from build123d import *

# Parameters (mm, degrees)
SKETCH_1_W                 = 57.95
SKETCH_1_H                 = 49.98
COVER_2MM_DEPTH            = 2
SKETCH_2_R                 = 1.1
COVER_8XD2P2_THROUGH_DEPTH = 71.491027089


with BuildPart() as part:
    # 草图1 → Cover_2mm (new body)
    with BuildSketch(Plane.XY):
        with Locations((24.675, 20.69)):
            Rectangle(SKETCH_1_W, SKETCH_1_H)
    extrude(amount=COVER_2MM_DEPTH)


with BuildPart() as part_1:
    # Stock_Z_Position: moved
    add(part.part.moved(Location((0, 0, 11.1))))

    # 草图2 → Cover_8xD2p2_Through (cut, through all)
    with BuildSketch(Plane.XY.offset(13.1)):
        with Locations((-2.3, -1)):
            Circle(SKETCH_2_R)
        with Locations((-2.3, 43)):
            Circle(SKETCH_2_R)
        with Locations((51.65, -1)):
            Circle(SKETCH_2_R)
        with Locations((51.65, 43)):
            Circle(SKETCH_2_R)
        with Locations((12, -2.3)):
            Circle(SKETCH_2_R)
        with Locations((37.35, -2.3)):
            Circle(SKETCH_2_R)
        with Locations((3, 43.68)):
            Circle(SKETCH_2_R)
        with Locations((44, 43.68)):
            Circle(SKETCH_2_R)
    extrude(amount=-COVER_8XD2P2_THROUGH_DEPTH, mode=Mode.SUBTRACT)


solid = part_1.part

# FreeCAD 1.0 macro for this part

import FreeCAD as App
import Part
import Sketcher


def add_polygon(sketch, points):
    """Adds a closed chain of lines whose ends are joined by coincident constraints."""
    first, n = sketch.GeometryCount, len(points)
    for a, b in zip(points, points[1:] + points[:1]):
        sketch.addGeometry(Part.LineSegment(App.Vector(*a, 0), App.Vector(*b, 0)), False)
    for i in range(n):
        sketch.addConstraint(Sketcher.Constraint("Coincident", first + i, 2, first + (i + 1) % n, 1))

doc = App.newDocument("Part")
params = doc.addObject("Spreadsheet::Sheet", "Params")
for row, (alias, value) in enumerate([
    ("sketch1_width", "57.95 mm"),
    ("sketch1_height", "49.98 mm"),
    ("pad1_length", "2 mm"),
    ("sketch2_diameter", "2.2 mm"),
], start=1):
    params.set(f"A{row}", alias)
    params.set(f"B{row}", "=" + value)
    params.setAlias(f"B{row}", alias)

body = doc.addObject("PartDesign::Body", "Body")

sketch1 = body.newObject("Sketcher::SketchObject", "Sketch")
sketch1.AttachmentSupport = (doc.getObject("XY_Plane"), [""])
sketch1.MapMode = "FlatFace"
add_polygon(sketch1, [(-4, 46), (-4, -4), (54, -4), (54, 46)])
sketch1.addConstraint([
    Sketcher.Constraint("Vertical", 0),
    Sketcher.Constraint("Horizontal", 1),
    Sketcher.Constraint("Vertical", 2),
    Sketcher.Constraint("Horizontal", 3),
    Sketcher.Constraint("DistanceX", 1, 1, 1, 2, 57.95),
    Sketcher.Constraint("DistanceY", 0, 2, 0, 1, 49.98),
    Sketcher.Constraint("DistanceX", 0, 2, -1, 1, 4.3),
    Sketcher.Constraint("DistanceY", 0, 2, -1, 1, 4.3),
])
sketch1.setExpression("Constraints[8]", "Params.sketch1_width")
sketch1.setExpression("Constraints[9]", "Params.sketch1_height")
pad1 = body.newObject("PartDesign::Pad", "Pad")
pad1.Profile = sketch1
pad1.setExpression("Length", "Params.pad1_length")
body2 = doc.addObject("PartDesign::Body", "Body001")
doc.recompute()

body.Placement = App.Placement(App.Vector(0, 0, 11.1), App.Rotation(App.Vector(0, 0, 1), 0))
boolean = body2.newObject("PartDesign::Boolean", "Boolean")
boolean.Type = "Fuse"
boolean.addObjects([body])

sketch2 = body2.newObject("Sketcher::SketchObject", "Sketch001")
sketch2.AttachmentSupport = (doc.getObject("XY_Plane001"), [""])
sketch2.MapMode = "FlatFace"
sketch2.AttachmentOffset = App.Placement(App.Vector(0, 0, 13.1), App.Rotation())
sketch2.addGeometry([
    Part.Circle(App.Vector(-2.3, -1, 0), App.Vector(0, 0, 1), 1.1),
    Part.Circle(App.Vector(-2.3, 43, 0), App.Vector(0, 0, 1), 1.1),
    Part.Circle(App.Vector(51.6, -1, 0), App.Vector(0, 0, 1), 1.1),
    Part.Circle(App.Vector(51.6, 43, 0), App.Vector(0, 0, 1), 1.1),
    Part.Circle(App.Vector(12, -2.3, 0), App.Vector(0, 0, 1), 1.1),
    Part.Circle(App.Vector(37.4, -2.3, 0), App.Vector(0, 0, 1), 1.1),
    Part.Circle(App.Vector(3, 43.7, 0), App.Vector(0, 0, 1), 1.1),
    Part.Circle(App.Vector(44, 43.7, 0), App.Vector(0, 0, 1), 1.1),
], False)
sketch2.addConstraint([
    Sketcher.Constraint("Equal", 0, 1),
    Sketcher.Constraint("Equal", 1, 2),
    Sketcher.Constraint("Equal", 2, 3),
    Sketcher.Constraint("Equal", 3, 4),
    Sketcher.Constraint("Equal", 4, 5),
    Sketcher.Constraint("Equal", 5, 6),
    Sketcher.Constraint("Equal", 6, 7),
    Sketcher.Constraint("Horizontal", 0, 3, 2, 3),
    Sketcher.Constraint("Horizontal", 1, 3, 3, 3),
    Sketcher.Constraint("Horizontal", 4, 3, 5, 3),
    Sketcher.Constraint("Horizontal", 6, 3, 7, 3),
    Sketcher.Constraint("Vertical", 0, 3, 1, 3),
    Sketcher.Constraint("Vertical", 2, 3, 3, 3),
    Sketcher.Constraint("Diameter", 0, 2.2),
    Sketcher.Constraint("DistanceY", 0, 3, -1, 1, 1.0),
    Sketcher.Constraint("DistanceY", -1, 1, 1, 3, 43.0),
    Sketcher.Constraint("DistanceX", -1, 1, 4, 3, 12.0),
    Sketcher.Constraint("DistanceX", -1, 1, 6, 3, 3.0),
    Sketcher.Constraint("DistanceX", -1, 1, 7, 3, 44.0),
    Sketcher.Constraint("DistanceX", 0, 3, -1, 1, 2.3),
    Sketcher.Constraint("DistanceY", 4, 3, -1, 1, 2.3),
    Sketcher.Constraint("DistanceX", 5, 3, 2, 3, 14.3),
    Sketcher.Constraint("DistanceX", -1, 1, 2, 3, 51.65),
    Sketcher.Constraint("DistanceY", -1, 1, 6, 3, 43.68),
])
sketch2.setExpression("Constraints[13]", "Params.sketch2_diameter")
pocket1 = body2.newObject("PartDesign::Pocket", "Pocket")
pocket1.Profile = sketch2
pocket1.Type = "ThroughAll"

doc.recompute()
